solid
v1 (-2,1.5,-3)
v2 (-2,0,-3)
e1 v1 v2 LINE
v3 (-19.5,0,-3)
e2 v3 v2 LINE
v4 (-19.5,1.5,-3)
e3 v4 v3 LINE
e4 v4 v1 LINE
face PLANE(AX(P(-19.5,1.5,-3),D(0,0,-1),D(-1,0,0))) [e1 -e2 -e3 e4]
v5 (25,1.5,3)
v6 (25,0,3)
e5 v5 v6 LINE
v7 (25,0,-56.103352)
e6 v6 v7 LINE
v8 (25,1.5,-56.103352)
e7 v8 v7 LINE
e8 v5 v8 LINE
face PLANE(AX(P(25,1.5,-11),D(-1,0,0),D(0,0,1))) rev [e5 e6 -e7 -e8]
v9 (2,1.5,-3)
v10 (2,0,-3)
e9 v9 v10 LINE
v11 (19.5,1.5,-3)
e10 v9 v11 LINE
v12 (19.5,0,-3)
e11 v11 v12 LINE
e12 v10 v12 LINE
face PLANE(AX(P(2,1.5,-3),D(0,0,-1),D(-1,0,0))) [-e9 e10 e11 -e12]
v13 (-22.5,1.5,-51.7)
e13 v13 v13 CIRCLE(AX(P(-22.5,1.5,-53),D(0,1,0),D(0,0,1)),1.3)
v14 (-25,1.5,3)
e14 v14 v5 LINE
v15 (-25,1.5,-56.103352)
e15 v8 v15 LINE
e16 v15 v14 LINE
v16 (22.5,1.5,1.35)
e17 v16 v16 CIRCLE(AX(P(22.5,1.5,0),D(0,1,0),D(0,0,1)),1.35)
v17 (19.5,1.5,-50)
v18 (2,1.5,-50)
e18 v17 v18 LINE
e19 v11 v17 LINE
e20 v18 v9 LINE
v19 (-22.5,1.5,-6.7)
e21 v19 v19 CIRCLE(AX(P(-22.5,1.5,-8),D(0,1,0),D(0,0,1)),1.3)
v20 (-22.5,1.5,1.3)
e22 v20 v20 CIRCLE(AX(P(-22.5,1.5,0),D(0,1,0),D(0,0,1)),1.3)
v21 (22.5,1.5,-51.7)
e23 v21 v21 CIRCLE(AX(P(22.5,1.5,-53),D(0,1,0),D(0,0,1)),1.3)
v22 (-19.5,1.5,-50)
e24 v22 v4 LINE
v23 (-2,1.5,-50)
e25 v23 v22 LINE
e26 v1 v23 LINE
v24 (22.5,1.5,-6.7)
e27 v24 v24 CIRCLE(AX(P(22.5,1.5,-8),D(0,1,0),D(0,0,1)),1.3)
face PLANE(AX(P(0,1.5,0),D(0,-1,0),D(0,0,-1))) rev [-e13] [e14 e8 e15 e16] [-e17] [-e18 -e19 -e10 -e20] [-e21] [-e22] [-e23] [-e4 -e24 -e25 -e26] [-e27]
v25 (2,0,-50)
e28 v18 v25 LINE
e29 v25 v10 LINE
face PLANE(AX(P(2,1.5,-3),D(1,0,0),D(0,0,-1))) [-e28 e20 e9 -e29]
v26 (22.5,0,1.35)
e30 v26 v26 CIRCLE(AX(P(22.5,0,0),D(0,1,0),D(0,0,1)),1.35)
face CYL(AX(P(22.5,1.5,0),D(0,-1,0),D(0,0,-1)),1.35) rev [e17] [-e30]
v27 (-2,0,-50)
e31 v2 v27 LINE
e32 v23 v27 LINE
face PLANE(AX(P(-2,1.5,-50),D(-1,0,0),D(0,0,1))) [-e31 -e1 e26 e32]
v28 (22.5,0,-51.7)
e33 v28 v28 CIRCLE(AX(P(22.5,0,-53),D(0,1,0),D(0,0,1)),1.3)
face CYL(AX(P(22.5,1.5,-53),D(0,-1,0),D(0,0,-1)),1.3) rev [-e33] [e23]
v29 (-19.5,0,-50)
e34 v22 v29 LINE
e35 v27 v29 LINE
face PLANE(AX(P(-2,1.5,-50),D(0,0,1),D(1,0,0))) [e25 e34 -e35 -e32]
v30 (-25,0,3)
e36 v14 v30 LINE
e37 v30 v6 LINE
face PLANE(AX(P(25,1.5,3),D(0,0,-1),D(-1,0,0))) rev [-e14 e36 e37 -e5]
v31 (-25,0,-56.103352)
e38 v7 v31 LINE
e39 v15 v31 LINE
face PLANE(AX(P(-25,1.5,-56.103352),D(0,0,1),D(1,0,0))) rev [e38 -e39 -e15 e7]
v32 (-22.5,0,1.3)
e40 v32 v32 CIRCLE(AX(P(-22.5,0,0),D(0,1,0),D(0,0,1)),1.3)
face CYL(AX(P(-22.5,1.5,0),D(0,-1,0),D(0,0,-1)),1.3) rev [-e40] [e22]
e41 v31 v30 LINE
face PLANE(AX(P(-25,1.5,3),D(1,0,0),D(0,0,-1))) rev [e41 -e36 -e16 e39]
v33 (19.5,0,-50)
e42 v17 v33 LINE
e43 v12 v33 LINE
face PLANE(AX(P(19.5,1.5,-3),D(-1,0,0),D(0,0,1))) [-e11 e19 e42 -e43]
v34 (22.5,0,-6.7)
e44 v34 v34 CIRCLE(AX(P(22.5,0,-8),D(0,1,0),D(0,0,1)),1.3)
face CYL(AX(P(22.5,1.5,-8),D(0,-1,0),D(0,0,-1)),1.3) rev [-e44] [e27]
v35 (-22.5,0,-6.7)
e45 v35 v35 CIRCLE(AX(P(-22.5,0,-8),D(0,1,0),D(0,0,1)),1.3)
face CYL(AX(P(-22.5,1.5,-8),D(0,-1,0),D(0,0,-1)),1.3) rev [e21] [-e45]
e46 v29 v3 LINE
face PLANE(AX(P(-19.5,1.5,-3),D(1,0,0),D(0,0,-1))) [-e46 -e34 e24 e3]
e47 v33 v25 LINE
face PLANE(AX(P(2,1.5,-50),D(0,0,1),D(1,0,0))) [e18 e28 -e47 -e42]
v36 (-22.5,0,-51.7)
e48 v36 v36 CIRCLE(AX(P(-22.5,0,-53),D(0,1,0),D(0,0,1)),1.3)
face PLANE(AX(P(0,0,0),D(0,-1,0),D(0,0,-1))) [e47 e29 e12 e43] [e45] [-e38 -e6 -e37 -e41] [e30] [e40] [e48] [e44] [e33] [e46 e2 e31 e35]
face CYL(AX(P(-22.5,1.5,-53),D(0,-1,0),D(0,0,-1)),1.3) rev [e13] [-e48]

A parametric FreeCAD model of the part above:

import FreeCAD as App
import Part
import Sketcher

doc = App.newDocument("Part")
params = doc.addObject("Spreadsheet::Sheet", "Params")
for row, (alias, value) in enumerate([
    ("sketch1_diameter", "2.7 mm"),
    ("sketch1_diameter2", "2.6 mm"),
    ("sketch1_width", "50 mm"),
    ("sketch1_height", "47 mm"),
    ("sketch1_width2", "17.5 mm"),
    ("pad1_length", "1.5 mm"),
], start=1):
    params.set(f"A{row}", alias)
    params.set(f"B{row}", "=" + value)
    params.setAlias(f"B{row}", alias)

body = doc.addObject("PartDesign::Body", "Body")

sketch1 = doc.addObject("Sketcher::SketchObject", "Sketch")
body.addObject(sketch1)
sketch1.AttachmentSupport = (doc.XZ_Plane, [""])
sketch1.MapMode = "FlatFace"
sketch1.addGeometry([
    Part.LineSegment(App.Vector(25, 3, 0), App.Vector(25, -56.1, 0)),
    Part.LineSegment(App.Vector(25, -56.1, 0), App.Vector(-25, -56.1, 0)),
    Part.LineSegment(App.Vector(-25, -56.1, 0), App.Vector(-25, 3, 0)),
    Part.LineSegment(App.Vector(-25, 3, 0), App.Vector(25, 3, 0)),
    Part.Circle(App.Vector(22.5, 0, 0), App.Vector(0, 0, 1), 1.4),
    Part.Circle(App.Vector(22.5, -8, 0), App.Vector(0, 0, 1), 1.3),
    Part.Circle(App.Vector(-22.5, 0, 0), App.Vector(0, 0, 1), 1.3),
    Part.Circle(App.Vector(-22.5, -8, 0), App.Vector(0, 0, 1), 1.3),
    Part.LineSegment(App.Vector(2, -3, 0), App.Vector(2, -50, 0)),
    Part.LineSegment(App.Vector(2, -50, 0), App.Vector(19.5, -50, 0)),
    Part.LineSegment(App.Vector(19.5, -50, 0), App.Vector(19.5, -3, 0)),
    Part.LineSegment(App.Vector(19.5, -3, 0), App.Vector(2, -3, 0)),
    Part.Circle(App.Vector(22.5, -53, 0), App.Vector(0, 0, 1), 1.3),
    Part.LineSegment(App.Vector(-19.5, -3, 0), App.Vector(-19.5, -50, 0)),
    Part.LineSegment(App.Vector(-19.5, -50, 0), App.Vector(-2, -50, 0)),
    Part.LineSegment(App.Vector(-2, -50, 0), App.Vector(-2, -3, 0)),
    Part.LineSegment(App.Vector(-2, -3, 0), App.Vector(-19.5, -3, 0)),
    Part.Circle(App.Vector(-22.5, -53, 0), App.Vector(0, 0, 1), 1.3),
], False)
sketch1.addConstraint([
    Sketcher.Constraint("Coincident", 0, 2, 1, 1),
    Sketcher.Constraint("Coincident", 1, 2, 2, 1),
    Sketcher.Constraint("Coincident", 2, 2, 3, 1),
    Sketcher.Constraint("Coincident", 3, 2, 0, 1),
    Sketcher.Constraint("Coincident", 8, 2, 9, 1),
    Sketcher.Constraint("Coincident", 9, 2, 10, 1),
    Sketcher.Constraint("Coincident", 10, 2, 11, 1),
    Sketcher.Constraint("Coincident", 11, 2, 8, 1),
    Sketcher.Constraint("Coincident", 13, 2, 14, 1),
    Sketcher.Constraint("Coincident", 14, 2, 15, 1),
    Sketcher.Constraint("Coincident", 15, 2, 16, 1),
    Sketcher.Constraint("Coincident", 16, 2, 13, 1),
    Sketcher.Constraint("Vertical", 0),
    Sketcher.Constraint("Horizontal", 1),
    Sketcher.Constraint("Vertical", 2),
    Sketcher.Constraint("Horizontal", 3),
    Sketcher.Constraint("Vertical", 8),
    Sketcher.Constraint("Horizontal", 9),
    Sketcher.Constraint("Vertical", 10),
    Sketcher.Constraint("Horizontal", 11),
    Sketcher.Constraint("Vertical", 13),
    Sketcher.Constraint("Horizontal", 14),
    Sketcher.Constraint("Vertical", 15),
    Sketcher.Constraint("Horizontal", 16),
    Sketcher.Constraint("Equal", 5, 6),
    Sketcher.Constraint("Equal", 6, 7),
    Sketcher.Constraint("Equal", 7, 12),
    Sketcher.Constraint("Equal", 12, 17),
    Sketcher.Constraint("Symmetric", 4, 3, 6, 3, -1, 1),
    Sketcher.Constraint("Symmetric", 5, 3, 7, 3, -2),
    Sketcher.Constraint("Symmetric", 12, 3, 17, 3, -2),
    Sketcher.Constraint("Symmetric", 9, 2, 13, 2, -2),
    Sketcher.Constraint("Symmetric", 11, 2, 15, 2, -2),
    Sketcher.Constraint("PointOnObject", 4, 3, -1),
    Sketcher.Constraint("Vertical", 4, 3, 5, 3),
    Sketcher.Constraint("Vertical", 5, 3, 12, 3),
    Sketcher.Constraint("Diameter", 4, 2.7),
    Sketcher.Constraint("Diameter", 5, 2.6),
    Sketcher.Constraint("DistanceX", 1, 2, 1, 1, 50.0),
    Sketcher.Constraint("DistanceY", 8, 2, 8, 1, 47.0),
    Sketcher.Constraint("DistanceX", 9, 1, 9, 2, 17.5),
    Sketcher.Constraint("DistanceY", 5, 3, -1, 1, 8.0),
    Sketcher.Constraint("DistanceY", 12, 3, -1, 1, 53.0),
    Sketcher.Constraint("DistanceX", -1, 1, 0, 2, 25.0),
    Sketcher.Constraint("DistanceY", -1, 1, 2, 2, 3.0),
    Sketcher.Constraint("DistanceX", -1, 1, 8, 2, 2.0),
    Sketcher.Constraint("DistanceY", 8, 2, -1, 1, 50.0),
    Sketcher.Constraint("DistanceX", 6, 3, 4, 3, 45.0),
    Sketcher.Constraint("DistanceY", 0, 2, 0, 1, 59.103352),
])
sketch1.setExpression("Constraints[36]", "Params.sketch1_diameter")
sketch1.setExpression("Constraints[37]", "Params.sketch1_diameter2")
sketch1.setExpression("Constraints[38]", "Params.sketch1_width")
sketch1.setExpression("Constraints[39]", "Params.sketch1_height")
sketch1.setExpression("Constraints[40]", "Params.sketch1_width2")
pad1 = doc.addObject("PartDesign::Pad", "Pad")
body.addObject(pad1)
pad1.Profile = sketch1
pad1.setExpression("Length", "Params.pad1_length")
pad1.Reversed = True

doc.recompute()
